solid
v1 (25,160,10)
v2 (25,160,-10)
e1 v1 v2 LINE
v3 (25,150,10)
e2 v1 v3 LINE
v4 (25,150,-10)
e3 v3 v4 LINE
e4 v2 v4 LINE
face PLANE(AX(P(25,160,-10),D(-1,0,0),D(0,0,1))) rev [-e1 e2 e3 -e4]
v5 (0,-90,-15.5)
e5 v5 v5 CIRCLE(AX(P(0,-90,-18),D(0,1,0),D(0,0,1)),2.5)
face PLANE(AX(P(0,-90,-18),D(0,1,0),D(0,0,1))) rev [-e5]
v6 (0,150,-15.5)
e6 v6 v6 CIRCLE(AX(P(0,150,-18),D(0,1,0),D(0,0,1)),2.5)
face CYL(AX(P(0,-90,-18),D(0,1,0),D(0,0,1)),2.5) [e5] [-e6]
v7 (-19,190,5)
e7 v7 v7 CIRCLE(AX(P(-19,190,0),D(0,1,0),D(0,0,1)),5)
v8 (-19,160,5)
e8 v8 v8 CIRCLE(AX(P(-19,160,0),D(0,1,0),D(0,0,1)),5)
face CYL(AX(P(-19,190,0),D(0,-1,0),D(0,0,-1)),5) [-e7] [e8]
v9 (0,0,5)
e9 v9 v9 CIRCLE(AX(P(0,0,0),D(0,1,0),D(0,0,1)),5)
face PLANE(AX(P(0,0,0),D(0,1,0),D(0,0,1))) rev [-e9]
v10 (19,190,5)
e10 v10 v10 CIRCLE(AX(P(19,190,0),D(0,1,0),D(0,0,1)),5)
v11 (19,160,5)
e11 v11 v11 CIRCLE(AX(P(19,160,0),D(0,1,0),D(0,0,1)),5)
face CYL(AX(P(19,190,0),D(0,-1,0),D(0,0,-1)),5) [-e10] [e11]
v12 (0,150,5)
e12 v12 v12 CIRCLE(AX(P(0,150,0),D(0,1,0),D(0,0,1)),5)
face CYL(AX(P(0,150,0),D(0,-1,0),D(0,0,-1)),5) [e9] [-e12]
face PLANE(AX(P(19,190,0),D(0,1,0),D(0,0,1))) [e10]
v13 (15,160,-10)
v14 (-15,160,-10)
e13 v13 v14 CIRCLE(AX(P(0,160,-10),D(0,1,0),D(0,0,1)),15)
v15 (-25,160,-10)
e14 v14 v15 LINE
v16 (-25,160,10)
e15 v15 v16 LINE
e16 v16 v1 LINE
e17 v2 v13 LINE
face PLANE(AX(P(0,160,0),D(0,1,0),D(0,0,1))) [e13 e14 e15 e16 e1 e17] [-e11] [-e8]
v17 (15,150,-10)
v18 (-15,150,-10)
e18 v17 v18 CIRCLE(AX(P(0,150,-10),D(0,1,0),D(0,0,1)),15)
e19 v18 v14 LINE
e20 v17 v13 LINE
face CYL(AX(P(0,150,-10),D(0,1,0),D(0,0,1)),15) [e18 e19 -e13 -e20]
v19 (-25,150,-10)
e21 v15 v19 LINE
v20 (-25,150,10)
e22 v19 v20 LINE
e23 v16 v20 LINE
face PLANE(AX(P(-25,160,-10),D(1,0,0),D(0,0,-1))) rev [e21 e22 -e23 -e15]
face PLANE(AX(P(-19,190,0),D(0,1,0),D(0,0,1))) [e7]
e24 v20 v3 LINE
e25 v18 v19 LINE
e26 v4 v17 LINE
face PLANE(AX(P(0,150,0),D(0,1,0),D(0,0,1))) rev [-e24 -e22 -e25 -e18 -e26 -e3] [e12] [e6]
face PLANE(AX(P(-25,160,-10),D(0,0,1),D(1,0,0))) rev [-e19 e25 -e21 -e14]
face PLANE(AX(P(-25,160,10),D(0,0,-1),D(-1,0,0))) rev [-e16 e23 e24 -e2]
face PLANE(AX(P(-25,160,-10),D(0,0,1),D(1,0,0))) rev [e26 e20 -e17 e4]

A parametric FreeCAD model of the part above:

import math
import FreeCAD as App
import Part
import Sketcher


def add_polygon(sketch, points):
    """Adds a closed chain of lines whose ends are joined by coincident constraints."""
    first, n = sketch.GeometryCount, len(points)
    for a, b in zip(points, points[1:] + points[:1]):
        sketch.addGeometry(Part.LineSegment(App.Vector(*a, 0), App.Vector(*b, 0)), False)
    for i in range(n):
        sketch.addConstraint(Sketcher.Constraint("Coincident", first + i, 2, first + (i + 1) % n, 1))

doc = App.newDocument("Part")
body = doc.addObject("PartDesign::Body", "Body")

# Sketch on XZ plane
sketch1 = doc.addObject("Sketcher::SketchObject", "Sketch")
body.addObject(sketch1)
sketch1.AttachmentSupport = (doc.XZ_Plane, [""])
sketch1.MapMode = "FlatFace"
sketch1.addGeometry(Part.Circle(App.Vector(0, 0, 0), App.Vector(0, 0, 1), 5), False)
sketch1.addConstraint([
    Sketcher.Constraint("Coincident", 0, 3, -1, 1),
    Sketcher.Constraint("Diameter", 0, 10.0),
])
pad1 = doc.addObject("PartDesign::Pad", "Pad")
body.addObject(pad1)
pad1.Profile = sketch1
pad1.Length = 150
pad1.Reversed = True

# Sketch on XZ plane
sketch2 = doc.addObject("Sketcher::SketchObject", "Sketch001")
body.addObject(sketch2)
sketch2.AttachmentSupport = (doc.XZ_Plane, [""])
sketch2.MapMode = "FlatFace"
sketch2.AttachmentOffset = App.Placement(App.Vector(0, 0, -150), App.Rotation())
add_polygon(sketch2, [(-25, -10), (-25, 10), (25, 10), (25, -10)])  # lines 0-3
sketch2.addConstraint([
    Sketcher.Constraint("Vertical", 0),
    Sketcher.Constraint("Horizontal", 1),
    Sketcher.Constraint("Vertical", 2),
    Sketcher.Constraint("Horizontal", 3),
    Sketcher.Constraint("Symmetric", 0, 2, 2, 2, -1, 1),
    Sketcher.Constraint("DistanceX", 1, 1, 1, 2, 50.0),
    Sketcher.Constraint("DistanceY", 0, 1, 0, 2, 20.0),
])
pad2 = doc.addObject("PartDesign::Pad", "Pad001")
body.addObject(pad2)
pad2.Profile = sketch2
pad2.Length = 10
pad2.Reversed = True

# Sketch on XZ plane
sketch3 = doc.addObject("Sketcher::SketchObject", "Sketch002")
body.addObject(sketch3)
sketch3.AttachmentSupport = (doc.XZ_Plane, [""])
sketch3.MapMode = "FlatFace"
sketch3.AttachmentOffset = App.Placement(App.Vector(0, 0, -160), App.Rotation())
sketch3.addGeometry([
    Part.Circle(App.Vector(-19, 0, 0), App.Vector(0, 0, 1), 5),
    Part.Circle(App.Vector(19, 0, 0), App.Vector(0, 0, 1), 5),
], False)
sketch3.addConstraint([
    Sketcher.Constraint("Equal", 0, 1),
    Sketcher.Constraint("Symmetric", 0, 3, 1, 3, -1, 1),
    Sketcher.Constraint("PointOnObject", 0, 3, -1),
    Sketcher.Constraint("Diameter", 0, 10.0),
    Sketcher.Constraint("DistanceX", 0, 3, -1, 1, 19.0),
])
pad3 = doc.addObject("PartDesign::Pad", "Pad002")
body.addObject(pad3)
pad3.Profile = sketch3
pad3.Length = 30
pad3.Reversed = True

# Sketch on XZ plane
sketch4 = doc.addObject("Sketcher::SketchObject", "Sketch003")
body.addObject(sketch4)
sketch4.AttachmentSupport = (doc.XZ_Plane, [""])
sketch4.MapMode = "FlatFace"
sketch4.AttachmentOffset = App.Placement(App.Vector(0, 0, -160), App.Rotation())
sketch4.addGeometry([
    Part.LineSegment(App.Vector(-15, -10, 0), App.Vector(15, -10, 0)),
    Part.ArcOfCircle(Part.Circle(App.Vector(0, -10, 0), App.Vector(0, 0, 1), 15), math.radians(180), math.radians(360)),
], False)
sketch4.addConstraint([
    Sketcher.Constraint("Coincident", 0, 1, 1, 1),
    Sketcher.Constraint("Coincident", 1, 2, 0, 2),
    Sketcher.Constraint("Horizontal", 0),
    Sketcher.Constraint("PointOnObject", 1, 3, -2),
    Sketcher.Constraint("Horizontal", 1, 3, 0, 1),
    Sketcher.Constraint("Radius", 1, 15.0),
    Sketcher.Constraint("DistanceY", 1, 3, -1, 1, 10.0),
])
pad4 = doc.addObject("PartDesign::Pad", "Pad003")
body.addObject(pad4)
pad4.Profile = sketch4
pad4.Length = 10

# Sketch on XZ plane
sketch5 = doc.addObject("Sketcher::SketchObject", "Sketch004")
body.addObject(sketch5)
sketch5.AttachmentSupport = (doc.XZ_Plane, [""])
sketch5.MapMode = "FlatFace"
sketch5.AttachmentOffset = App.Placement(App.Vector(0, 0, -160), App.Rotation())
sketch5.addGeometry(Part.Circle(App.Vector(0, -18, 0), App.Vector(0, 0, 1), 2.5), False)
sketch5.addConstraint([
    Sketcher.Constraint("PointOnObject", 0, 3, -2),
    Sketcher.Constraint("Diameter", 0, 5.0),
    Sketcher.Constraint("DistanceY", 0, 3, -1, 1, 18.0),
])
pad5 = doc.addObject("PartDesign::Pad", "Pad004")
body.addObject(pad5)
pad5.Profile = sketch5
pad5.Length = 250

doc.recompute()
